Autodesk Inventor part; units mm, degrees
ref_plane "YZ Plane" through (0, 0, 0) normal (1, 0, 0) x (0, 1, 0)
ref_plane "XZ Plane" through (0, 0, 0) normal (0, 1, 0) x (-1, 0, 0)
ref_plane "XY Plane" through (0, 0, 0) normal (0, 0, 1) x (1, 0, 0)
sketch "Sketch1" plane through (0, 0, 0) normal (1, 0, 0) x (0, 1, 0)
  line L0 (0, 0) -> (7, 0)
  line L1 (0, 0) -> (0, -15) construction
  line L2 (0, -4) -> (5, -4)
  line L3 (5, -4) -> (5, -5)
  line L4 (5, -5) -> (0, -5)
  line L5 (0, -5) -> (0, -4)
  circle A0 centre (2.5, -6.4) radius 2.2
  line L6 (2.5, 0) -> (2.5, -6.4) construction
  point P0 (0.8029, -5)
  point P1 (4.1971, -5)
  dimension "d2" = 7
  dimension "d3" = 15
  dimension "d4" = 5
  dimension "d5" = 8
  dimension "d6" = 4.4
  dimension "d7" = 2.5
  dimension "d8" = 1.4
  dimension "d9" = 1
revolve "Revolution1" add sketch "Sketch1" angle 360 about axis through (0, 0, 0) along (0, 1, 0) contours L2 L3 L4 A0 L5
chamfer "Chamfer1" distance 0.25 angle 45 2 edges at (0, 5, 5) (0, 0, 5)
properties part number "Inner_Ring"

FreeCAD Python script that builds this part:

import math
import FreeCAD as App
import Part
import Sketcher
from FreeCAD import Vector


def edges_at(feature, points):
    """Names of the edges that pass closest to the given points."""
    edges = feature.Shape.Edges
    near = lambda p: min(range(len(edges)), key=lambda i: edges[i].distToShape(Part.Vertex(*p))[0])
    return sorted({f"Edge{near(p) + 1}" for p in points})

doc = App.newDocument("Part")
params = doc.addObject("Spreadsheet::Sheet", "Params")
for row, (alias, value) in enumerate([
    ("sketch1_radius", "2.2 mm"),
    ("sketch1_width", "5 mm"),
    ("sketch1_height", "1 mm"),
    ("revolution_angle", "360 deg"),
    ("chamfer_size", "0.25 mm"),
], start=1):
    params.set(f"A{row}", alias)
    params.set(f"B{row}", "=" + value)
    params.setAlias(f"B{row}", alias)

body = doc.addObject("PartDesign::Body", "Body")

# Sketch on YZ plane
sketch1 = body.newObject("Sketcher::SketchObject", "Sketch")
sketch1.AttachmentSupport = (doc.getObject("YZ_Plane"), [""])
sketch1.MapMode = "FlatFace"
sketch1.addGeometry(Part.LineSegment(Vector(5, -4, 0), Vector(0, -4, 0)), False)
sketch1.addGeometry(Part.LineSegment(Vector(0, -4, 0), Vector(0, -5, 0)), False)
sketch1.addGeometry(Part.LineSegment(Vector(0, -5, 0), Vector(0.8, -5, 0)), False)
sketch1.addGeometry(Part.ArcOfCircle(Part.Circle(Vector(2.5, -6.4, 0), Vector(0, 0, 1), 2.2), math.radians(40), math.radians(140)), False)
sketch1.addGeometry(Part.LineSegment(Vector(4.2, -5, 0), Vector(5, -5, 0)), False)
sketch1.addGeometry(Part.LineSegment(Vector(5, -5, 0), Vector(5, -4, 0)), False)
sketch1.addConstraint(Sketcher.Constraint("Coincident", 0, 2, 1, 1))
sketch1.addConstraint(Sketcher.Constraint("Coincident", 1, 2, 2, 1))
sketch1.addConstraint(Sketcher.Constraint("Coincident", 2, 2, 3, 2))
sketch1.addConstraint(Sketcher.Constraint("Coincident", 3, 1, 4, 1))
sketch1.addConstraint(Sketcher.Constraint("Coincident", 4, 2, 5, 1))
sketch1.addConstraint(Sketcher.Constraint("Coincident", 5, 2, 0, 1))
sketch1.addConstraint(Sketcher.Constraint("Horizontal", 0))
sketch1.addConstraint(Sketcher.Constraint("Vertical", 1))
sketch1.addConstraint(Sketcher.Constraint("Horizontal", 2))
sketch1.addConstraint(Sketcher.Constraint("Horizontal", 4))
sketch1.addConstraint(Sketcher.Constraint("Vertical", 5))
sketch1.addConstraint(Sketcher.Constraint("PointOnObject", 0, 2, -2))
sketch1.addConstraint(Sketcher.Constraint("Horizontal", 2, 2, 3, 1))
sketch1.addConstraint(Sketcher.Constraint("Equal", 2, 4))
sketch1.addConstraint(Sketcher.Constraint("Radius", 3, 2.2))
sketch1.addConstraint(Sketcher.Constraint("DistanceX", 0, 2, 0, 1, 5.0))
sketch1.addConstraint(Sketcher.Constraint("DistanceY", 1, 2, 1, 1, 1.0))
sketch1.addConstraint(Sketcher.Constraint("DistanceY", 1, 2, -1, 1, 5.0))
sketch1.addConstraint(Sketcher.Constraint("DistanceY", 3, 3, 1, 2, 1.4))
sketch1.setExpression("Constraints[14]", "Params.sketch1_radius")
sketch1.setExpression("Constraints[15]", "Params.sketch1_width")
sketch1.setExpression("Constraints[16]", "Params.sketch1_height")
revolution = body.newObject("PartDesign::Revolution", "Revolution")
revolution.Profile = sketch1
revolution.ReferenceAxis = (sketch1, ["H_Axis"])
revolution.setExpression("Angle", "Params.revolution_angle")
doc.recompute()

chamfer = body.newObject("PartDesign::Chamfer", "Chamfer")
chamfer.Base = (revolution, edges_at(revolution, [(0, 5, 5), (0, 0, 5)]))
chamfer.setExpression("Size", "Params.chamfer_size")

doc.recompute()
